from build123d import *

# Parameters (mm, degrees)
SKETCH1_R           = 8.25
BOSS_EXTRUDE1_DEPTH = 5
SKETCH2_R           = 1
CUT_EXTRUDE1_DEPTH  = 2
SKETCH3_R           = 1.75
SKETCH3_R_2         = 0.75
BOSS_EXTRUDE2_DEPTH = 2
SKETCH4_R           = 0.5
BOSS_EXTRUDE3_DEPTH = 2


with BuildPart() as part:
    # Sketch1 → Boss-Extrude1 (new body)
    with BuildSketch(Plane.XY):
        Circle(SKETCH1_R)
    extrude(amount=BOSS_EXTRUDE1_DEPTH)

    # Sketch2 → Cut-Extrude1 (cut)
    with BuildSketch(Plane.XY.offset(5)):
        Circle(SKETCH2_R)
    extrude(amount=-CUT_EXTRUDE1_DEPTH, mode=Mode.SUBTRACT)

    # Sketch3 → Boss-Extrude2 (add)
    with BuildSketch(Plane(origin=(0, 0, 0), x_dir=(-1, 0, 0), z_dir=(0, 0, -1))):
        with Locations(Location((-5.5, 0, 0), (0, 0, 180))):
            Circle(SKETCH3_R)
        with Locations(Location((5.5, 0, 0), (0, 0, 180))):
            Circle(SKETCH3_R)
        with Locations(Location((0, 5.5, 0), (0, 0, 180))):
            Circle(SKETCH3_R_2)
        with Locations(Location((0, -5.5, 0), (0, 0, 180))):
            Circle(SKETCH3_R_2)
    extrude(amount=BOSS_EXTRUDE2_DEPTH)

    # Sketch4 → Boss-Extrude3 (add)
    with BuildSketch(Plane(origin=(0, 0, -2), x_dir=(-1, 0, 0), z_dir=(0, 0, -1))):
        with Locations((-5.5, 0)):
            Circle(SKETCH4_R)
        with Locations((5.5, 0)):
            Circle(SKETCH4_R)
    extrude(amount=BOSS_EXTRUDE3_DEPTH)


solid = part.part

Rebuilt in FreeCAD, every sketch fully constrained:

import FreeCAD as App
import Part
import Sketcher
from FreeCAD import Vector

doc = App.newDocument("Part")
params = doc.addObject("Spreadsheet::Sheet", "Params")
for row, (alias, value) in enumerate([
    ("sketch1_diameter", "16.5 mm"),
    ("pad1_length", "5 mm"),
    ("sketch2_diameter", "2 mm"),
    ("pocket1_length", "2 mm"),
    ("sketch3_diameter", "3.5 mm"),
    ("sketch3_diameter2", "1.5 mm"),
    ("pad2_length", "2 mm"),
    ("sketch4_diameter", "1 mm"),
    ("pad3_length", "2 mm"),
], start=1):
    params.set(f"A{row}", alias)
    params.set(f"B{row}", "=" + value)
    params.setAlias(f"B{row}", alias)

body = doc.addObject("PartDesign::Body", "Body")

sketch1 = body.newObject("Sketcher::SketchObject", "Sketch")
sketch1.AttachmentSupport = (doc.getObject("XY_Plane"), [""])
sketch1.MapMode = "FlatFace"
sketch1.addGeometry(Part.Circle(Vector(0, 0, 0), Vector(0, 0, 1), 8), False)
sketch1.addConstraint([
    Sketcher.Constraint("Coincident", 0, 3, -1, 1),
    Sketcher.Constraint("Diameter", 0, 16.5),
])
sketch1.setExpression("Constraints[1]", "Params.sketch1_diameter")
pad1 = body.newObject("PartDesign::Pad", "Pad")
pad1.Profile = sketch1
pad1.setExpression("Length", "Params.pad1_length")

sketch2 = body.newObject("Sketcher::SketchObject", "Sketch001")
sketch2.AttachmentSupport = (doc.getObject("XY_Plane"), [""])
sketch2.MapMode = "FlatFace"
sketch2.AttachmentOffset = App.Placement(Vector(0, 0, 5), App.Rotation())
sketch2.addGeometry(Part.Circle(Vector(0, 0, 0), Vector(0, 0, 1), 1), False)
sketch2.addConstraint([
    Sketcher.Constraint("Coincident", 0, 3, -1, 1),
    Sketcher.Constraint("Diameter", 0, 2.0),
])
sketch2.setExpression("Constraints[1]", "Params.sketch2_diameter")
pocket1 = body.newObject("PartDesign::Pocket", "Pocket")
pocket1.Profile = sketch2
pocket1.setExpression("Length", "Params.pocket1_length")

sketch3 = body.newObject("Sketcher::SketchObject", "Sketch002")
sketch3.AttachmentSupport = (doc.getObject("XY_Plane"), [""])
sketch3.MapMode = "FlatFace"
sketch3.addGeometry([
    Part.Circle(Vector(5.5, 0, 0), Vector(0, 0, 1), 1.8),
    Part.Circle(Vector(-5.5, 0, 0), Vector(0, 0, 1), 1.8),
    Part.Circle(Vector(0, 5.5, 0), Vector(0, 0, 1), 0.8),
    Part.Circle(Vector(0, -5.5, 0), Vector(0, 0, 1), 0.8),
], False)
sketch3.addConstraint([
    Sketcher.Constraint("Equal", 0, 1),
    Sketcher.Constraint("Equal", 2, 3),
    Sketcher.Constraint("Symmetric", 0, 3, 1, 3, -1, 1),
    Sketcher.Constraint("Symmetric", 2, 3, 3, 3, -1, 1),
    Sketcher.Constraint("PointOnObject", 0, 3, -1),
    Sketcher.Constraint("PointOnObject", 2, 3, -2),
    Sketcher.Constraint("Diameter", 0, 3.5),
    Sketcher.Constraint("Diameter", 2, 1.5),
    Sketcher.Constraint("DistanceX", 1, 3, 0, 3, 11.0),
    Sketcher.Constraint("DistanceY", 3, 3, 2, 3, 11.0),
])
sketch3.setExpression("Constraints[6]", "Params.sketch3_diameter")
sketch3.setExpression("Constraints[7]", "Params.sketch3_diameter2")
pad2 = body.newObject("PartDesign::Pad", "Pad001")
pad2.Profile = sketch3
pad2.setExpression("Length", "Params.pad2_length")
pad2.Reversed = True

sketch4 = body.newObject("Sketcher::SketchObject", "Sketch003")
sketch4.AttachmentSupport = (doc.getObject("XY_Plane"), [""])
sketch4.MapMode = "FlatFace"
sketch4.AttachmentOffset = App.Placement(Vector(0, 0, -2), App.Rotation())
sketch4.addGeometry([
    Part.Circle(Vector(5.5, 0, 0), Vector(0, 0, 1), 0.5),
    Part.Circle(Vector(-5.5, 0, 0), Vector(0, 0, 1), 0.5),
], False)
sketch4.addConstraint([
    Sketcher.Constraint("Equal", 0, 1),
    Sketcher.Constraint("Symmetric", 0, 3, 1, 3, -1, 1),
    Sketcher.Constraint("PointOnObject", 0, 3, -1),
    Sketcher.Constraint("Diameter", 0, 1.0),
    Sketcher.Constraint("DistanceX", 1, 3, 0, 3, 11.0),
])
sketch4.setExpression("Constraints[3]", "Params.sketch4_diameter")
pad3 = body.newObject("PartDesign::Pad", "Pad002")
pad3.Profile = sketch4
pad3.setExpression("Length", "Params.pad3_length")
pad3.Reversed = True

doc.recompute()
